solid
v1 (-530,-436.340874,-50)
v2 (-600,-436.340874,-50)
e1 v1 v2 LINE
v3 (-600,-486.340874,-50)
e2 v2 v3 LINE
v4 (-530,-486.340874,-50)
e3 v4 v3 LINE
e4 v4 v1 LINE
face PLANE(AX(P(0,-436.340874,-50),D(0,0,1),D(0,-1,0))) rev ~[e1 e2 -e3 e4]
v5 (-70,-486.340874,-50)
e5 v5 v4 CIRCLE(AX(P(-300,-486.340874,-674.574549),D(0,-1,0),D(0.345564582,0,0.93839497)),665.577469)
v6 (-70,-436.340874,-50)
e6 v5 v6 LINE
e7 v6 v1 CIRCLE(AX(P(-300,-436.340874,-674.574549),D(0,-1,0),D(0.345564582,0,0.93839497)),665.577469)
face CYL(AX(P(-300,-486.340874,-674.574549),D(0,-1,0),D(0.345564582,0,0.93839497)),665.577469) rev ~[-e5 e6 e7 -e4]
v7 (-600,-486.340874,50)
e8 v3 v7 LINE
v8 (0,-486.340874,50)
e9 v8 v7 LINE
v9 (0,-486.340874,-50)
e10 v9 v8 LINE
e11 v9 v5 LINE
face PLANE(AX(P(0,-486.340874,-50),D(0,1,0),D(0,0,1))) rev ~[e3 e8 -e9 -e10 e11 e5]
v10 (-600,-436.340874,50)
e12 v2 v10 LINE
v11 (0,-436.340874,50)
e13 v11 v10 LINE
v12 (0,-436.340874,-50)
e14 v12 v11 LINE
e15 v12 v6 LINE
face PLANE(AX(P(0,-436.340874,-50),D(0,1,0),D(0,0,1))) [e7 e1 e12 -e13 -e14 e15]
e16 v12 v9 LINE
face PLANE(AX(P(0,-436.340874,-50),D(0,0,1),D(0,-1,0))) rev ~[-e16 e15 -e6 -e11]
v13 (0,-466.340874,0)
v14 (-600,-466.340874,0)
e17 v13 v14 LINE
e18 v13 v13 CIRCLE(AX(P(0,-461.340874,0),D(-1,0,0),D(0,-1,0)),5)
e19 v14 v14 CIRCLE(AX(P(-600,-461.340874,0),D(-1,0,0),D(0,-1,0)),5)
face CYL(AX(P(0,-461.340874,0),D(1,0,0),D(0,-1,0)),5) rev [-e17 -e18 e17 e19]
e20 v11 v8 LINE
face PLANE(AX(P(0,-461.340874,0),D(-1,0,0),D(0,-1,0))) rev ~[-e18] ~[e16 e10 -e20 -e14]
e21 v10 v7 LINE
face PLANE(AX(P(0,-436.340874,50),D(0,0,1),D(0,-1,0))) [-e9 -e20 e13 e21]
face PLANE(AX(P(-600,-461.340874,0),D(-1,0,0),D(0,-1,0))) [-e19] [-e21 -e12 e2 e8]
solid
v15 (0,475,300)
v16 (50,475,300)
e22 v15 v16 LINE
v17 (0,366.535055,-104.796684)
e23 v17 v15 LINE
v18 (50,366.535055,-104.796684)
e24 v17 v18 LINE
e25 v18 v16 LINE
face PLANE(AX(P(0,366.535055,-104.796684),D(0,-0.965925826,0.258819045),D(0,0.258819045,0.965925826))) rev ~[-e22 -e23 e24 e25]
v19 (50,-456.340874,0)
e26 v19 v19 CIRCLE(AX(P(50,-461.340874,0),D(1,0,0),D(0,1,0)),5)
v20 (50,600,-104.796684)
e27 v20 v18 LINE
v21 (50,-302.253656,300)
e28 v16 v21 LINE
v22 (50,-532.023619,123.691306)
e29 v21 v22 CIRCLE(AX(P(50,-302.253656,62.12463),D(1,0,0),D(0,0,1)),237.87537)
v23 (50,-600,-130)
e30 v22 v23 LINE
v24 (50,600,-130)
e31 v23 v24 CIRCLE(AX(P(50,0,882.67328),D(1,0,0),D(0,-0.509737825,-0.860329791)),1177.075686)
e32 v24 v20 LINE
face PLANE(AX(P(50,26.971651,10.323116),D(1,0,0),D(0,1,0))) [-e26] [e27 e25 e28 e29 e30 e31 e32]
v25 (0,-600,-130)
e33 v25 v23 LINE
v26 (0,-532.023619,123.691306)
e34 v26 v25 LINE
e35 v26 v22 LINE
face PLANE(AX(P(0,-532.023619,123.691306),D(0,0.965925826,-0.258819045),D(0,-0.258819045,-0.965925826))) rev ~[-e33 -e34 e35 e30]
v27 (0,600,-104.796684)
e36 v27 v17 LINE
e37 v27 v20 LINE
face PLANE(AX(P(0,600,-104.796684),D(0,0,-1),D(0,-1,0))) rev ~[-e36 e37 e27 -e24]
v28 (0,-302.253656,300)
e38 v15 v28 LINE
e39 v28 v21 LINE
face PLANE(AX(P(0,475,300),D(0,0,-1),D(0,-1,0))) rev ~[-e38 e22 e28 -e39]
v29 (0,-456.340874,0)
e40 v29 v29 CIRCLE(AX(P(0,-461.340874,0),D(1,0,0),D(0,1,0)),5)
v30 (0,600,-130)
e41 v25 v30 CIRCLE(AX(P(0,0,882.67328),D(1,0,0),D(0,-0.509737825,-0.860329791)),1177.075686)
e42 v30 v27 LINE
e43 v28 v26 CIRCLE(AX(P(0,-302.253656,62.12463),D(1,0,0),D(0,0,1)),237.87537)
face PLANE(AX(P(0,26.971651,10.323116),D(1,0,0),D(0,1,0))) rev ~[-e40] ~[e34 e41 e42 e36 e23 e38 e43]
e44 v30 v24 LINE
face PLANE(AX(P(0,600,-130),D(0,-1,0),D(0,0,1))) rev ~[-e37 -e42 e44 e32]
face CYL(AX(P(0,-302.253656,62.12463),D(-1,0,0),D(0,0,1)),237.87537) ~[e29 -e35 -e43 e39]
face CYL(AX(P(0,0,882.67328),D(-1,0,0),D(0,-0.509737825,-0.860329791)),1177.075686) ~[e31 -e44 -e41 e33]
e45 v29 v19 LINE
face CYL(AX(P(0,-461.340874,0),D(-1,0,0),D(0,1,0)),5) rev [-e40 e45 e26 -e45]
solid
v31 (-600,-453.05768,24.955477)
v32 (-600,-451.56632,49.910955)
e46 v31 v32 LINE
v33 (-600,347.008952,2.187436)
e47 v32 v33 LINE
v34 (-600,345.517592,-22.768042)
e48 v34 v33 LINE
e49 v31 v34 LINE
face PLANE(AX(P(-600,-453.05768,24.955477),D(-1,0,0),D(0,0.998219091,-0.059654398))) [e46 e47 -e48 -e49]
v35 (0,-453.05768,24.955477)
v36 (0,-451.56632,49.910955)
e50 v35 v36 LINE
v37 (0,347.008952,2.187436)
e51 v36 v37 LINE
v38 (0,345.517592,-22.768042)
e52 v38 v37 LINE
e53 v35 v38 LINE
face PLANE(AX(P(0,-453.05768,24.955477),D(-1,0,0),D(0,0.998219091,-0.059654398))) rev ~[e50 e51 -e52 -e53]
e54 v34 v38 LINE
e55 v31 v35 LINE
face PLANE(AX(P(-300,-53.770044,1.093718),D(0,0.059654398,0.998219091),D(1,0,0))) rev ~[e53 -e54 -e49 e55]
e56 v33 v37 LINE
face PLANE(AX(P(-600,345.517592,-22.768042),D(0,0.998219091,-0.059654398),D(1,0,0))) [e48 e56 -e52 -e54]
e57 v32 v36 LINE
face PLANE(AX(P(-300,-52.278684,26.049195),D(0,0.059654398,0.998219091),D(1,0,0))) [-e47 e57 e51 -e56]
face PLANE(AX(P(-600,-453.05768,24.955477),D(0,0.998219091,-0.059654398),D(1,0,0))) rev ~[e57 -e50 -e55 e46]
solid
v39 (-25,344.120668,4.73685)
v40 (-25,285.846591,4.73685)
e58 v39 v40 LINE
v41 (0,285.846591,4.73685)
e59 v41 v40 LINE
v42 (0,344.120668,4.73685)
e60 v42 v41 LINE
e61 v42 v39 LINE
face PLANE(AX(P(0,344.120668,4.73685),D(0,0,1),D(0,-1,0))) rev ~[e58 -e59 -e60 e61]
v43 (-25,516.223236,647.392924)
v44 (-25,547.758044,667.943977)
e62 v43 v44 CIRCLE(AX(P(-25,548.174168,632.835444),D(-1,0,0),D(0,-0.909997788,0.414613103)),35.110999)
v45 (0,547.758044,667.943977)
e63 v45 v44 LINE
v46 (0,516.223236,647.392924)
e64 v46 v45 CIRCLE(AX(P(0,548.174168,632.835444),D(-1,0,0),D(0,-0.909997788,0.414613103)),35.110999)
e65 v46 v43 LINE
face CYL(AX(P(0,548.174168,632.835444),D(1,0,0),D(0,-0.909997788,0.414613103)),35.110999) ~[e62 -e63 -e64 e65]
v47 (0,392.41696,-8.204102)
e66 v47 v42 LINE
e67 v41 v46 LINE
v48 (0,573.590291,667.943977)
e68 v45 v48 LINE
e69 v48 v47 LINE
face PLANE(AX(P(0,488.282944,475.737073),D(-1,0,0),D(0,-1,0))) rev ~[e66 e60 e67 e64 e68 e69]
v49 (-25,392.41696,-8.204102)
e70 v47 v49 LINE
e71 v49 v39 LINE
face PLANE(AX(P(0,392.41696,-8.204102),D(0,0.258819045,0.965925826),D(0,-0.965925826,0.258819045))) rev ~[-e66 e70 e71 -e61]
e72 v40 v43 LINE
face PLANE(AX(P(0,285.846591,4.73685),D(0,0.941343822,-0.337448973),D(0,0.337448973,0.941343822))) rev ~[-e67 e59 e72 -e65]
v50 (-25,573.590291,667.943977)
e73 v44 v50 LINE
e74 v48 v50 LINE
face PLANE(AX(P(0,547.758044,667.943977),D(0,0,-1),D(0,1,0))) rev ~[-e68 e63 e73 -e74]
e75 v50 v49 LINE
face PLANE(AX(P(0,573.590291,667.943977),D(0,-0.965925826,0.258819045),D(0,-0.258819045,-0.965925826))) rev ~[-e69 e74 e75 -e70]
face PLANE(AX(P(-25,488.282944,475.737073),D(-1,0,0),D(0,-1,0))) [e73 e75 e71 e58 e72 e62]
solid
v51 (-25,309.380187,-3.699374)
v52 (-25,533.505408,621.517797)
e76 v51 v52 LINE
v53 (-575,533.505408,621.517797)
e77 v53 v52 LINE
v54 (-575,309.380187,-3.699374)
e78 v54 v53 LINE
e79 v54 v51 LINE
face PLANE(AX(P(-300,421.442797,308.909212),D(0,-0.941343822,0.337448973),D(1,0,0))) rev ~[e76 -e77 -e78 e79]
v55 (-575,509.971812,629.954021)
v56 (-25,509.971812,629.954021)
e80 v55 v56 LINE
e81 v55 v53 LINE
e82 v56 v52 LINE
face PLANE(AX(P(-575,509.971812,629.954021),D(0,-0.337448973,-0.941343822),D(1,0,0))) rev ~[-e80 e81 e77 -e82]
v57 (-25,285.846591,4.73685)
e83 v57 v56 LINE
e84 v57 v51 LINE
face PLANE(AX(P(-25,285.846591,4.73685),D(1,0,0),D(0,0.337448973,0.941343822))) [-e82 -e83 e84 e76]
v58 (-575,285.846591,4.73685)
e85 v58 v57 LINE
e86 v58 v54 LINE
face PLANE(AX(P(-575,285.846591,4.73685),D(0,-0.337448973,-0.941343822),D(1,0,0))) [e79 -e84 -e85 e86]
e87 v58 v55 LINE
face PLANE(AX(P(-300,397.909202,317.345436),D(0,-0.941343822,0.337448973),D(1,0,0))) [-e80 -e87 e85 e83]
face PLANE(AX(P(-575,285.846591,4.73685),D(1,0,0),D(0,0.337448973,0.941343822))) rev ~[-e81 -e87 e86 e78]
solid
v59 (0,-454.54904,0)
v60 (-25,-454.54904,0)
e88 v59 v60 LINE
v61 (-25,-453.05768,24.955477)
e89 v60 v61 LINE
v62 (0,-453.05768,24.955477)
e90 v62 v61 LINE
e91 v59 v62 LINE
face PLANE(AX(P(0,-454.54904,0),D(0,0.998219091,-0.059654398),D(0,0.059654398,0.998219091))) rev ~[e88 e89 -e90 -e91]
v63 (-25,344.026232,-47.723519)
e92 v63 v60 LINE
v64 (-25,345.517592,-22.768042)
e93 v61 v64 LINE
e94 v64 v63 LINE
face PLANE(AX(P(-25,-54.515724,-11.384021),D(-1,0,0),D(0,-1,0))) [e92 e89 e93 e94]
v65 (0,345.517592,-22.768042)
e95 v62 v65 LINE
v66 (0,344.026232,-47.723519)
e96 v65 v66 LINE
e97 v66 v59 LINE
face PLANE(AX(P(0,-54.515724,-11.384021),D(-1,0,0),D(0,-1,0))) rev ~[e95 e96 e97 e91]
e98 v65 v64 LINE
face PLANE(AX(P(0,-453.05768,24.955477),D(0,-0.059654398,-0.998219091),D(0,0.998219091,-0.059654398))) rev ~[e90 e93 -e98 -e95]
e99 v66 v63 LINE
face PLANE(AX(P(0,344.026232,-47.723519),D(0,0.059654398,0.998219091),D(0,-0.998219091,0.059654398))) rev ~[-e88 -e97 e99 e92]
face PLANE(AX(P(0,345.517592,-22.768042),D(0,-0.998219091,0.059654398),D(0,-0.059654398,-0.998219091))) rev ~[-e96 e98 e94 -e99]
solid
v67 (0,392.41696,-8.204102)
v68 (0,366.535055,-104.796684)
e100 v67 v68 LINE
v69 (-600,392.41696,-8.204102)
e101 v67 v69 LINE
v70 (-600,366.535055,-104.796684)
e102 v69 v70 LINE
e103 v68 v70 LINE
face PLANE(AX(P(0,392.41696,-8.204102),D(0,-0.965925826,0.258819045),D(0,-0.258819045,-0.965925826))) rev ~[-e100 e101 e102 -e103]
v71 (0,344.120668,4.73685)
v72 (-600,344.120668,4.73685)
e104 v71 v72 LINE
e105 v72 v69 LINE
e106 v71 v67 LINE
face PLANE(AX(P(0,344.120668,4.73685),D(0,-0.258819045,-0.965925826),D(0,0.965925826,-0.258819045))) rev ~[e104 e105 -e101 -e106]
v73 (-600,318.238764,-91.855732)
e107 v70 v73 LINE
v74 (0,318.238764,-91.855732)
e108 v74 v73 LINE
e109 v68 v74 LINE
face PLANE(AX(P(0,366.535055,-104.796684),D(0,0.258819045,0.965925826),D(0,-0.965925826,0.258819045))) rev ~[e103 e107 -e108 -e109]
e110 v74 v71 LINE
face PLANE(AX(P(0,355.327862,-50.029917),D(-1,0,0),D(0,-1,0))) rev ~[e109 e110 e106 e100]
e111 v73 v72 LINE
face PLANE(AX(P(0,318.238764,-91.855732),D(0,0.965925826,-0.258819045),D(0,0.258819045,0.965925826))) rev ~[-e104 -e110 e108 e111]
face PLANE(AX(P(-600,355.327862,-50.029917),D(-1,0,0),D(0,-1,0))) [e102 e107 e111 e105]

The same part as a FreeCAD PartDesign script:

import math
import FreeCAD as App
import Part
import Sketcher
Q = App.Units.Quantity


def add_polygon(sketch, points):
    """Adds a closed chain of lines whose ends are joined by coincident constraints."""
    first, n = sketch.GeometryCount, len(points)
    for a, b in zip(points, points[1:] + points[:1]):
        sketch.addGeometry(Part.LineSegment(App.Vector(*a, 0), App.Vector(*b, 0)), False)
    for i in range(n):
        sketch.addConstraint(Sketcher.Constraint("Coincident", first + i, 2, first + (i + 1) % n, 1))

doc = App.newDocument("Part")
body = doc.addObject("PartDesign::Body", "Body")

# Sketch on YZ plane
sketch1 = body.newObject("Sketcher::SketchObject", "Sketch")
sketch1.AttachmentSupport = (doc.getObject("YZ_Plane"), [""])
sketch1.MapMode = "FlatFace"
sketch1.addGeometry([
    Part.LineSegment(App.Vector(-532, 124, 0), App.Vector(-600, -130, 0)),  # 0
    Part.ArcOfCircle(Part.Circle(App.Vector(0, 883, 0), App.Vector(0, 0, 1), 1177), math.radians(-121), math.radians(-59)),  # 1
    Part.LineSegment(App.Vector(600, -130, 0), App.Vector(600, -105, 0)),  # 2
    Part.LineSegment(App.Vector(600, -105, 0), App.Vector(367, -105, 0)),  # 3
    Part.LineSegment(App.Vector(367, -105, 0), App.Vector(475, 300, 0)),  # 4
    Part.LineSegment(App.Vector(475, 300, 0), App.Vector(-302, 300, 0)),  # 5
    Part.ArcOfCircle(Part.Circle(App.Vector(-302, 62, 0), App.Vector(0, 0, 1), 238), math.radians(90), math.radians(165)),  # 6
    Part.Circle(App.Vector(-461, 0, 0), App.Vector(0, 0, 1), 5),  # 7
], False)
sketch1.addConstraint([
    Sketcher.Constraint("Coincident", 0, 2, 1, 1),
    Sketcher.Constraint("Coincident", 1, 2, 2, 1),
    Sketcher.Constraint("Coincident", 2, 2, 3, 1),
    Sketcher.Constraint("Coincident", 3, 2, 4, 1),
    Sketcher.Constraint("Coincident", 4, 2, 5, 1),
    Sketcher.Constraint("Tangent", 5, 2, 6, 1),
    Sketcher.Constraint("Tangent", 6, 2, 0, 1),
    Sketcher.Constraint("Vertical", 2),
    Sketcher.Constraint("Horizontal", 3),
    Sketcher.Constraint("Horizontal", 5),
    Sketcher.Constraint("PointOnObject", 1, 3, -2),
    Sketcher.Constraint("PointOnObject", 7, 3, -1),
    Sketcher.Constraint("Parallel", 0, 4),
    Sketcher.Constraint("Diameter", 7, 10.0),
    Sketcher.Constraint("Angle", 0, Q("-105 deg")),
    Sketcher.Constraint("DistanceX", 0, 2, -1, 1, 600.0),
    Sketcher.Constraint("DistanceY", 0, 2, -1, 1, 130.0),
    Sketcher.Constraint("DistanceX", -1, 1, 2, 2, 600.0),
    Sketcher.Constraint("DistanceX", -1, 1, 4, 2, 475.0),
    Sketcher.Constraint("DistanceY", -1, 1, 4, 2, 300.0),
    Sketcher.Constraint("Radius", 6, 237.87537),
    Sketcher.Constraint("Radius", 1, 1177.075686),
    Sketcher.Constraint("DistanceX", 3, 2, 3, 1, 233.464945),
    Sketcher.Constraint("DistanceX", 7, 3, 6, 3, 159.087219),
])
pad1 = body.newObject("PartDesign::Pad", "Pad")
pad1.Profile = sketch1
pad1.Length = 50
body2 = doc.addObject("PartDesign::Body", "Body001")

# Sketch on YZ plane
sketch2 = body2.newObject("Sketcher::SketchObject", "Sketch001")
sketch2.AttachmentSupport = (doc.getObject("YZ_Plane001"), [""])
sketch2.MapMode = "FlatFace"
add_polygon(sketch2, [(-436, 50), (-436, -50), (-486, -50), (-486, 50)])  # lines 0-3
sketch2.addGeometry(Part.Circle(App.Vector(-461, 0, 0), App.Vector(0, 0, 1), 5), False)  # 4
sketch2.addConstraint([
    Sketcher.Constraint("Vertical", 0),
    Sketcher.Constraint("Horizontal", 1),
    Sketcher.Constraint("Vertical", 2),
    Sketcher.Constraint("Horizontal", 3),
    Sketcher.Constraint("PointOnObject", 4, 3, -1),
    Sketcher.Constraint("Diameter", 4, 10.0),
    Sketcher.Constraint("DistanceX", 1, 2, 1, 1, 50.0),
    Sketcher.Constraint("DistanceY", 0, 2, 0, 1, 100.0),
    Sketcher.Constraint("DistanceY", 0, 2, -1, 1, 50.0),
    Sketcher.Constraint("DistanceX", 4, 3, 0, 2, 25.0),
    Sketcher.Constraint("DistanceX", 4, 3, -1, 1, 461.340874),
])
pad2 = body2.newObject("PartDesign::Pad", "Pad001")
pad2.Profile = sketch2
pad2.Length = 600
pad2.Reversed = True

# Sketch on XZ plane
sketch3 = body2.newObject("Sketcher::SketchObject", "Sketch002")
sketch3.AttachmentSupport = (doc.getObject("XZ_Plane001"), [""])
sketch3.MapMode = "FlatFace"
sketch3.AttachmentOffset = App.Placement(App.Vector(0, 0, 486.340874), App.Rotation())
sketch3.addGeometry([
    Part.LineSegment(App.Vector(-530, -50, 0), App.Vector(-70, -50, 0)),
    Part.ArcOfCircle(Part.Circle(App.Vector(-300, -675, 0), App.Vector(0, 0, 1), 666), math.radians(70), math.radians(110)),
], False)
sketch3.addConstraint([
    Sketcher.Constraint("Coincident", 0, 1, 1, 2),
    Sketcher.Constraint("Coincident", 1, 1, 0, 2),
    Sketcher.Constraint("Horizontal", 0),
    Sketcher.Constraint("DistanceX", 0, 1, 0, 2, 460.0),
    Sketcher.Constraint("DistanceX", 1, 3, -1, 1, 300.0),
    Sketcher.Constraint("DistanceY", 0, 1, -1, 1, 50.0),
    Sketcher.Constraint("Radius", 1, 665.577469),
])
pocket1 = body2.newObject("PartDesign::Pocket", "Pocket")
pocket1.Profile = sketch3
pocket1.Length = 50
body3 = doc.addObject("PartDesign::Body", "Body002")

# Sketch on YZ plane
sketch4 = body3.newObject("Sketcher::SketchObject", "Sketch003")
sketch4.AttachmentSupport = (doc.getObject("YZ_Plane002"), [""])
sketch4.MapMode = "FlatFace"
add_polygon(sketch4, [(392, -8), (367, -105), (318, -92), (344, 5)])  # lines 0-3
sketch4.addConstraint([
    Sketcher.Constraint("Perpendicular", 0, 1),
    Sketcher.Constraint("Perpendicular", 1, 2),
    Sketcher.Constraint("Perpendicular", 2, 3),
    Sketcher.Constraint("Angle", 0, Q("-105 deg")),
    Sketcher.Constraint("Distance", 0, 100.0),
    Sketcher.Constraint("Distance", 1, 50.0),
    Sketcher.Constraint("DistanceY", 3, 2, -1, 1, 8.204102),
    Sketcher.Constraint("DistanceX", -1, 1, 2, 2, 344.120668),
])
pad3 = body3.newObject("PartDesign::Pad", "Pad002")
pad3.Profile = sketch4
pad3.Length = 600
pad3.Reversed = True
body4 = doc.addObject("PartDesign::Body", "Body003")

# Sketch on YZ plane
sketch5 = body4.newObject("Sketcher::SketchObject", "Sketch004")
sketch5.AttachmentSupport = (doc.getObject("YZ_Plane003"), [""])
sketch5.MapMode = "FlatFace"
sketch5.addGeometry([
    Part.LineSegment(App.Vector(574, 668, 0), App.Vector(392, -8, 0)),  # 0
    Part.LineSegment(App.Vector(392, -8, 0), App.Vector(344, 5, 0)),  # 1
    Part.LineSegment(App.Vector(344, 5, 0), App.Vector(286, 5, 0)),  # 2
    Part.LineSegment(App.Vector(286, 5, 0), App.Vector(516, 647, 0)),  # 3
    Part.ArcOfCircle(Part.Circle(App.Vector(548, 633, 0), App.Vector(0, 0, 1), 35), math.radians(91), math.radians(156)),  # 4
    Part.LineSegment(App.Vector(548, 668, 0), App.Vector(574, 668, 0)),  # 5
], False)
sketch5.addConstraint([
    Sketcher.Constraint("Coincident", 0, 2, 1, 1),
    Sketcher.Constraint("Coincident", 1, 2, 2, 1),
    Sketcher.Constraint("Coincident", 2, 2, 3, 1),
    Sketcher.Constraint("Coincident", 3, 2, 4, 2),
    Sketcher.Constraint("Coincident", 4, 1, 5, 1),
    Sketcher.Constraint("Coincident", 5, 2, 0, 1),
    Sketcher.Constraint("Horizontal", 2),
    Sketcher.Constraint("Horizontal", 5),
    Sketcher.Constraint("Perpendicular", 0, 1),
    Sketcher.Constraint("Angle", 0, Q("-105 deg")),
    Sketcher.Constraint("Distance", 0, 700.0),
    Sketcher.Constraint("Distance", 1, 50.0),
    Sketcher.Constraint("Radius", 4, 35.110999),
    Sketcher.Constraint("DistanceY", 0, 2, -1, 1, 8.204102),
    Sketcher.Constraint("DistanceX", 1, 2, 4, 3, 204.053499),
    Sketcher.Constraint("DistanceX", 2, 2, 2, 1, 58.274077),
    Sketcher.Constraint("DistanceX", 5, 1, 5, 2, 25.832247),
    Sketcher.Constraint("DistanceX", -1, 1, 0, 2, 392.41696),
    Sketcher.Constraint("DistanceX", 3, 2, 4, 3, 31.950931),
])
pad4 = body4.newObject("PartDesign::Pad", "Pad003")
pad4.Profile = sketch5
pad4.Length = 25
pad4.Reversed = True
body5 = doc.addObject("PartDesign::Body", "Body004")

# Sketch on YZ plane
sketch6 = body5.newObject("Sketcher::SketchObject", "Sketch005")
sketch6.AttachmentSupport = (doc.getObject("YZ_Plane004"), [""])
sketch6.MapMode = "FlatFace"
add_polygon(sketch6, [(344, -48), (-455, 0), (-453, 25), (346, -23)])  # lines 0-3
sketch6.addConstraint([
    Sketcher.Constraint("PointOnObject", 0, 2, -1),
    Sketcher.Constraint("Perpendicular", 0, 1),
    Sketcher.Constraint("Perpendicular", 1, 2),
    Sketcher.Constraint("Perpendicular", 2, 3),
    Sketcher.Constraint("Distance", 0, 800.0),
    Sketcher.Constraint("Distance", 1, 25.0),
    Sketcher.Constraint("DistanceX", 0, 2, -1, 1, 454.54904),
    Sketcher.Constraint("DistanceX", 1, 2, -1, 1, 453.05768),
])
pad5 = body5.newObject("PartDesign::Pad", "Pad004")
pad5.Profile = sketch6
pad5.Length = 25
pad5.Reversed = True
body6 = doc.addObject("PartDesign::Body", "Body005")

# Sketch on an angled plane
sketch7 = body6.newObject("Sketcher::SketchObject", "Sketch006")
sketch7.Placement = App.Placement(App.Vector(0, -0.12622, -2.112081), App.Rotation(App.Vector(1, 0, 0), App.Vector(0, 0.998219091, -0.059654398), App.Vector(0, 0.059654398, 0.998219091), "ZXY"))
add_polygon(sketch7, [(-600, 346), (-600, -454), (0, -454), (0, 346)])  # lines 0-3
sketch7.addConstraint([
    Sketcher.Constraint("Vertical", 0),
    Sketcher.Constraint("Horizontal", 1),
    Sketcher.Constraint("Vertical", 2),
    Sketcher.Constraint("Horizontal", 3),
    Sketcher.Constraint("PointOnObject", 1, 2, -2),
    Sketcher.Constraint("DistanceX", 1, 1, 1, 2, 600.0),
    Sketcher.Constraint("DistanceY", 0, 2, 0, 1, 800.000001),
    Sketcher.Constraint("DistanceY", 0, 2, -1, 1, 453.73953),
])
pad6 = body6.newObject("PartDesign::Pad", "Pad005")
pad6.Profile = sketch7
pad6.Length = 25
body7 = doc.addObject("PartDesign::Body", "Body006")

# Sketch on an angled plane
sketch8 = body7.newObject("Sketcher::SketchObject", "Sketch007")
sketch8.Placement = App.Placement(App.Vector(0, 251.792036, -90.26135), App.Rotation(App.Vector(1, 0, 0), App.Vector(0, 0.337448973, 0.941343822), App.Vector(0, -0.941343822, 0.337448973), "ZXY"))
add_polygon(sketch8, [(-575, 765), (-575, 101), (-25, 101), (-25, 765)])  # lines 0-3
sketch8.addConstraint([
    Sketcher.Constraint("Vertical", 0),
    Sketcher.Constraint("Horizontal", 1),
    Sketcher.Constraint("Vertical", 2),
    Sketcher.Constraint("Horizontal", 3),
    Sketcher.Constraint("DistanceX", 1, 1, 1, 2, 550.0),
    Sketcher.Constraint("DistanceX", 0, 2, -1, 1, 575.0),
    Sketcher.Constraint("DistanceY", 0, 2, 0, 1, 664.175147),
    Sketcher.Constraint("DistanceY", -1, 1, 2, 2, 765.092791),
])
pad7 = body7.newObject("PartDesign::Pad", "Pad006")
pad7.Profile = sketch8
pad7.Length = 25
pad7.Reversed = True

doc.recompute()
